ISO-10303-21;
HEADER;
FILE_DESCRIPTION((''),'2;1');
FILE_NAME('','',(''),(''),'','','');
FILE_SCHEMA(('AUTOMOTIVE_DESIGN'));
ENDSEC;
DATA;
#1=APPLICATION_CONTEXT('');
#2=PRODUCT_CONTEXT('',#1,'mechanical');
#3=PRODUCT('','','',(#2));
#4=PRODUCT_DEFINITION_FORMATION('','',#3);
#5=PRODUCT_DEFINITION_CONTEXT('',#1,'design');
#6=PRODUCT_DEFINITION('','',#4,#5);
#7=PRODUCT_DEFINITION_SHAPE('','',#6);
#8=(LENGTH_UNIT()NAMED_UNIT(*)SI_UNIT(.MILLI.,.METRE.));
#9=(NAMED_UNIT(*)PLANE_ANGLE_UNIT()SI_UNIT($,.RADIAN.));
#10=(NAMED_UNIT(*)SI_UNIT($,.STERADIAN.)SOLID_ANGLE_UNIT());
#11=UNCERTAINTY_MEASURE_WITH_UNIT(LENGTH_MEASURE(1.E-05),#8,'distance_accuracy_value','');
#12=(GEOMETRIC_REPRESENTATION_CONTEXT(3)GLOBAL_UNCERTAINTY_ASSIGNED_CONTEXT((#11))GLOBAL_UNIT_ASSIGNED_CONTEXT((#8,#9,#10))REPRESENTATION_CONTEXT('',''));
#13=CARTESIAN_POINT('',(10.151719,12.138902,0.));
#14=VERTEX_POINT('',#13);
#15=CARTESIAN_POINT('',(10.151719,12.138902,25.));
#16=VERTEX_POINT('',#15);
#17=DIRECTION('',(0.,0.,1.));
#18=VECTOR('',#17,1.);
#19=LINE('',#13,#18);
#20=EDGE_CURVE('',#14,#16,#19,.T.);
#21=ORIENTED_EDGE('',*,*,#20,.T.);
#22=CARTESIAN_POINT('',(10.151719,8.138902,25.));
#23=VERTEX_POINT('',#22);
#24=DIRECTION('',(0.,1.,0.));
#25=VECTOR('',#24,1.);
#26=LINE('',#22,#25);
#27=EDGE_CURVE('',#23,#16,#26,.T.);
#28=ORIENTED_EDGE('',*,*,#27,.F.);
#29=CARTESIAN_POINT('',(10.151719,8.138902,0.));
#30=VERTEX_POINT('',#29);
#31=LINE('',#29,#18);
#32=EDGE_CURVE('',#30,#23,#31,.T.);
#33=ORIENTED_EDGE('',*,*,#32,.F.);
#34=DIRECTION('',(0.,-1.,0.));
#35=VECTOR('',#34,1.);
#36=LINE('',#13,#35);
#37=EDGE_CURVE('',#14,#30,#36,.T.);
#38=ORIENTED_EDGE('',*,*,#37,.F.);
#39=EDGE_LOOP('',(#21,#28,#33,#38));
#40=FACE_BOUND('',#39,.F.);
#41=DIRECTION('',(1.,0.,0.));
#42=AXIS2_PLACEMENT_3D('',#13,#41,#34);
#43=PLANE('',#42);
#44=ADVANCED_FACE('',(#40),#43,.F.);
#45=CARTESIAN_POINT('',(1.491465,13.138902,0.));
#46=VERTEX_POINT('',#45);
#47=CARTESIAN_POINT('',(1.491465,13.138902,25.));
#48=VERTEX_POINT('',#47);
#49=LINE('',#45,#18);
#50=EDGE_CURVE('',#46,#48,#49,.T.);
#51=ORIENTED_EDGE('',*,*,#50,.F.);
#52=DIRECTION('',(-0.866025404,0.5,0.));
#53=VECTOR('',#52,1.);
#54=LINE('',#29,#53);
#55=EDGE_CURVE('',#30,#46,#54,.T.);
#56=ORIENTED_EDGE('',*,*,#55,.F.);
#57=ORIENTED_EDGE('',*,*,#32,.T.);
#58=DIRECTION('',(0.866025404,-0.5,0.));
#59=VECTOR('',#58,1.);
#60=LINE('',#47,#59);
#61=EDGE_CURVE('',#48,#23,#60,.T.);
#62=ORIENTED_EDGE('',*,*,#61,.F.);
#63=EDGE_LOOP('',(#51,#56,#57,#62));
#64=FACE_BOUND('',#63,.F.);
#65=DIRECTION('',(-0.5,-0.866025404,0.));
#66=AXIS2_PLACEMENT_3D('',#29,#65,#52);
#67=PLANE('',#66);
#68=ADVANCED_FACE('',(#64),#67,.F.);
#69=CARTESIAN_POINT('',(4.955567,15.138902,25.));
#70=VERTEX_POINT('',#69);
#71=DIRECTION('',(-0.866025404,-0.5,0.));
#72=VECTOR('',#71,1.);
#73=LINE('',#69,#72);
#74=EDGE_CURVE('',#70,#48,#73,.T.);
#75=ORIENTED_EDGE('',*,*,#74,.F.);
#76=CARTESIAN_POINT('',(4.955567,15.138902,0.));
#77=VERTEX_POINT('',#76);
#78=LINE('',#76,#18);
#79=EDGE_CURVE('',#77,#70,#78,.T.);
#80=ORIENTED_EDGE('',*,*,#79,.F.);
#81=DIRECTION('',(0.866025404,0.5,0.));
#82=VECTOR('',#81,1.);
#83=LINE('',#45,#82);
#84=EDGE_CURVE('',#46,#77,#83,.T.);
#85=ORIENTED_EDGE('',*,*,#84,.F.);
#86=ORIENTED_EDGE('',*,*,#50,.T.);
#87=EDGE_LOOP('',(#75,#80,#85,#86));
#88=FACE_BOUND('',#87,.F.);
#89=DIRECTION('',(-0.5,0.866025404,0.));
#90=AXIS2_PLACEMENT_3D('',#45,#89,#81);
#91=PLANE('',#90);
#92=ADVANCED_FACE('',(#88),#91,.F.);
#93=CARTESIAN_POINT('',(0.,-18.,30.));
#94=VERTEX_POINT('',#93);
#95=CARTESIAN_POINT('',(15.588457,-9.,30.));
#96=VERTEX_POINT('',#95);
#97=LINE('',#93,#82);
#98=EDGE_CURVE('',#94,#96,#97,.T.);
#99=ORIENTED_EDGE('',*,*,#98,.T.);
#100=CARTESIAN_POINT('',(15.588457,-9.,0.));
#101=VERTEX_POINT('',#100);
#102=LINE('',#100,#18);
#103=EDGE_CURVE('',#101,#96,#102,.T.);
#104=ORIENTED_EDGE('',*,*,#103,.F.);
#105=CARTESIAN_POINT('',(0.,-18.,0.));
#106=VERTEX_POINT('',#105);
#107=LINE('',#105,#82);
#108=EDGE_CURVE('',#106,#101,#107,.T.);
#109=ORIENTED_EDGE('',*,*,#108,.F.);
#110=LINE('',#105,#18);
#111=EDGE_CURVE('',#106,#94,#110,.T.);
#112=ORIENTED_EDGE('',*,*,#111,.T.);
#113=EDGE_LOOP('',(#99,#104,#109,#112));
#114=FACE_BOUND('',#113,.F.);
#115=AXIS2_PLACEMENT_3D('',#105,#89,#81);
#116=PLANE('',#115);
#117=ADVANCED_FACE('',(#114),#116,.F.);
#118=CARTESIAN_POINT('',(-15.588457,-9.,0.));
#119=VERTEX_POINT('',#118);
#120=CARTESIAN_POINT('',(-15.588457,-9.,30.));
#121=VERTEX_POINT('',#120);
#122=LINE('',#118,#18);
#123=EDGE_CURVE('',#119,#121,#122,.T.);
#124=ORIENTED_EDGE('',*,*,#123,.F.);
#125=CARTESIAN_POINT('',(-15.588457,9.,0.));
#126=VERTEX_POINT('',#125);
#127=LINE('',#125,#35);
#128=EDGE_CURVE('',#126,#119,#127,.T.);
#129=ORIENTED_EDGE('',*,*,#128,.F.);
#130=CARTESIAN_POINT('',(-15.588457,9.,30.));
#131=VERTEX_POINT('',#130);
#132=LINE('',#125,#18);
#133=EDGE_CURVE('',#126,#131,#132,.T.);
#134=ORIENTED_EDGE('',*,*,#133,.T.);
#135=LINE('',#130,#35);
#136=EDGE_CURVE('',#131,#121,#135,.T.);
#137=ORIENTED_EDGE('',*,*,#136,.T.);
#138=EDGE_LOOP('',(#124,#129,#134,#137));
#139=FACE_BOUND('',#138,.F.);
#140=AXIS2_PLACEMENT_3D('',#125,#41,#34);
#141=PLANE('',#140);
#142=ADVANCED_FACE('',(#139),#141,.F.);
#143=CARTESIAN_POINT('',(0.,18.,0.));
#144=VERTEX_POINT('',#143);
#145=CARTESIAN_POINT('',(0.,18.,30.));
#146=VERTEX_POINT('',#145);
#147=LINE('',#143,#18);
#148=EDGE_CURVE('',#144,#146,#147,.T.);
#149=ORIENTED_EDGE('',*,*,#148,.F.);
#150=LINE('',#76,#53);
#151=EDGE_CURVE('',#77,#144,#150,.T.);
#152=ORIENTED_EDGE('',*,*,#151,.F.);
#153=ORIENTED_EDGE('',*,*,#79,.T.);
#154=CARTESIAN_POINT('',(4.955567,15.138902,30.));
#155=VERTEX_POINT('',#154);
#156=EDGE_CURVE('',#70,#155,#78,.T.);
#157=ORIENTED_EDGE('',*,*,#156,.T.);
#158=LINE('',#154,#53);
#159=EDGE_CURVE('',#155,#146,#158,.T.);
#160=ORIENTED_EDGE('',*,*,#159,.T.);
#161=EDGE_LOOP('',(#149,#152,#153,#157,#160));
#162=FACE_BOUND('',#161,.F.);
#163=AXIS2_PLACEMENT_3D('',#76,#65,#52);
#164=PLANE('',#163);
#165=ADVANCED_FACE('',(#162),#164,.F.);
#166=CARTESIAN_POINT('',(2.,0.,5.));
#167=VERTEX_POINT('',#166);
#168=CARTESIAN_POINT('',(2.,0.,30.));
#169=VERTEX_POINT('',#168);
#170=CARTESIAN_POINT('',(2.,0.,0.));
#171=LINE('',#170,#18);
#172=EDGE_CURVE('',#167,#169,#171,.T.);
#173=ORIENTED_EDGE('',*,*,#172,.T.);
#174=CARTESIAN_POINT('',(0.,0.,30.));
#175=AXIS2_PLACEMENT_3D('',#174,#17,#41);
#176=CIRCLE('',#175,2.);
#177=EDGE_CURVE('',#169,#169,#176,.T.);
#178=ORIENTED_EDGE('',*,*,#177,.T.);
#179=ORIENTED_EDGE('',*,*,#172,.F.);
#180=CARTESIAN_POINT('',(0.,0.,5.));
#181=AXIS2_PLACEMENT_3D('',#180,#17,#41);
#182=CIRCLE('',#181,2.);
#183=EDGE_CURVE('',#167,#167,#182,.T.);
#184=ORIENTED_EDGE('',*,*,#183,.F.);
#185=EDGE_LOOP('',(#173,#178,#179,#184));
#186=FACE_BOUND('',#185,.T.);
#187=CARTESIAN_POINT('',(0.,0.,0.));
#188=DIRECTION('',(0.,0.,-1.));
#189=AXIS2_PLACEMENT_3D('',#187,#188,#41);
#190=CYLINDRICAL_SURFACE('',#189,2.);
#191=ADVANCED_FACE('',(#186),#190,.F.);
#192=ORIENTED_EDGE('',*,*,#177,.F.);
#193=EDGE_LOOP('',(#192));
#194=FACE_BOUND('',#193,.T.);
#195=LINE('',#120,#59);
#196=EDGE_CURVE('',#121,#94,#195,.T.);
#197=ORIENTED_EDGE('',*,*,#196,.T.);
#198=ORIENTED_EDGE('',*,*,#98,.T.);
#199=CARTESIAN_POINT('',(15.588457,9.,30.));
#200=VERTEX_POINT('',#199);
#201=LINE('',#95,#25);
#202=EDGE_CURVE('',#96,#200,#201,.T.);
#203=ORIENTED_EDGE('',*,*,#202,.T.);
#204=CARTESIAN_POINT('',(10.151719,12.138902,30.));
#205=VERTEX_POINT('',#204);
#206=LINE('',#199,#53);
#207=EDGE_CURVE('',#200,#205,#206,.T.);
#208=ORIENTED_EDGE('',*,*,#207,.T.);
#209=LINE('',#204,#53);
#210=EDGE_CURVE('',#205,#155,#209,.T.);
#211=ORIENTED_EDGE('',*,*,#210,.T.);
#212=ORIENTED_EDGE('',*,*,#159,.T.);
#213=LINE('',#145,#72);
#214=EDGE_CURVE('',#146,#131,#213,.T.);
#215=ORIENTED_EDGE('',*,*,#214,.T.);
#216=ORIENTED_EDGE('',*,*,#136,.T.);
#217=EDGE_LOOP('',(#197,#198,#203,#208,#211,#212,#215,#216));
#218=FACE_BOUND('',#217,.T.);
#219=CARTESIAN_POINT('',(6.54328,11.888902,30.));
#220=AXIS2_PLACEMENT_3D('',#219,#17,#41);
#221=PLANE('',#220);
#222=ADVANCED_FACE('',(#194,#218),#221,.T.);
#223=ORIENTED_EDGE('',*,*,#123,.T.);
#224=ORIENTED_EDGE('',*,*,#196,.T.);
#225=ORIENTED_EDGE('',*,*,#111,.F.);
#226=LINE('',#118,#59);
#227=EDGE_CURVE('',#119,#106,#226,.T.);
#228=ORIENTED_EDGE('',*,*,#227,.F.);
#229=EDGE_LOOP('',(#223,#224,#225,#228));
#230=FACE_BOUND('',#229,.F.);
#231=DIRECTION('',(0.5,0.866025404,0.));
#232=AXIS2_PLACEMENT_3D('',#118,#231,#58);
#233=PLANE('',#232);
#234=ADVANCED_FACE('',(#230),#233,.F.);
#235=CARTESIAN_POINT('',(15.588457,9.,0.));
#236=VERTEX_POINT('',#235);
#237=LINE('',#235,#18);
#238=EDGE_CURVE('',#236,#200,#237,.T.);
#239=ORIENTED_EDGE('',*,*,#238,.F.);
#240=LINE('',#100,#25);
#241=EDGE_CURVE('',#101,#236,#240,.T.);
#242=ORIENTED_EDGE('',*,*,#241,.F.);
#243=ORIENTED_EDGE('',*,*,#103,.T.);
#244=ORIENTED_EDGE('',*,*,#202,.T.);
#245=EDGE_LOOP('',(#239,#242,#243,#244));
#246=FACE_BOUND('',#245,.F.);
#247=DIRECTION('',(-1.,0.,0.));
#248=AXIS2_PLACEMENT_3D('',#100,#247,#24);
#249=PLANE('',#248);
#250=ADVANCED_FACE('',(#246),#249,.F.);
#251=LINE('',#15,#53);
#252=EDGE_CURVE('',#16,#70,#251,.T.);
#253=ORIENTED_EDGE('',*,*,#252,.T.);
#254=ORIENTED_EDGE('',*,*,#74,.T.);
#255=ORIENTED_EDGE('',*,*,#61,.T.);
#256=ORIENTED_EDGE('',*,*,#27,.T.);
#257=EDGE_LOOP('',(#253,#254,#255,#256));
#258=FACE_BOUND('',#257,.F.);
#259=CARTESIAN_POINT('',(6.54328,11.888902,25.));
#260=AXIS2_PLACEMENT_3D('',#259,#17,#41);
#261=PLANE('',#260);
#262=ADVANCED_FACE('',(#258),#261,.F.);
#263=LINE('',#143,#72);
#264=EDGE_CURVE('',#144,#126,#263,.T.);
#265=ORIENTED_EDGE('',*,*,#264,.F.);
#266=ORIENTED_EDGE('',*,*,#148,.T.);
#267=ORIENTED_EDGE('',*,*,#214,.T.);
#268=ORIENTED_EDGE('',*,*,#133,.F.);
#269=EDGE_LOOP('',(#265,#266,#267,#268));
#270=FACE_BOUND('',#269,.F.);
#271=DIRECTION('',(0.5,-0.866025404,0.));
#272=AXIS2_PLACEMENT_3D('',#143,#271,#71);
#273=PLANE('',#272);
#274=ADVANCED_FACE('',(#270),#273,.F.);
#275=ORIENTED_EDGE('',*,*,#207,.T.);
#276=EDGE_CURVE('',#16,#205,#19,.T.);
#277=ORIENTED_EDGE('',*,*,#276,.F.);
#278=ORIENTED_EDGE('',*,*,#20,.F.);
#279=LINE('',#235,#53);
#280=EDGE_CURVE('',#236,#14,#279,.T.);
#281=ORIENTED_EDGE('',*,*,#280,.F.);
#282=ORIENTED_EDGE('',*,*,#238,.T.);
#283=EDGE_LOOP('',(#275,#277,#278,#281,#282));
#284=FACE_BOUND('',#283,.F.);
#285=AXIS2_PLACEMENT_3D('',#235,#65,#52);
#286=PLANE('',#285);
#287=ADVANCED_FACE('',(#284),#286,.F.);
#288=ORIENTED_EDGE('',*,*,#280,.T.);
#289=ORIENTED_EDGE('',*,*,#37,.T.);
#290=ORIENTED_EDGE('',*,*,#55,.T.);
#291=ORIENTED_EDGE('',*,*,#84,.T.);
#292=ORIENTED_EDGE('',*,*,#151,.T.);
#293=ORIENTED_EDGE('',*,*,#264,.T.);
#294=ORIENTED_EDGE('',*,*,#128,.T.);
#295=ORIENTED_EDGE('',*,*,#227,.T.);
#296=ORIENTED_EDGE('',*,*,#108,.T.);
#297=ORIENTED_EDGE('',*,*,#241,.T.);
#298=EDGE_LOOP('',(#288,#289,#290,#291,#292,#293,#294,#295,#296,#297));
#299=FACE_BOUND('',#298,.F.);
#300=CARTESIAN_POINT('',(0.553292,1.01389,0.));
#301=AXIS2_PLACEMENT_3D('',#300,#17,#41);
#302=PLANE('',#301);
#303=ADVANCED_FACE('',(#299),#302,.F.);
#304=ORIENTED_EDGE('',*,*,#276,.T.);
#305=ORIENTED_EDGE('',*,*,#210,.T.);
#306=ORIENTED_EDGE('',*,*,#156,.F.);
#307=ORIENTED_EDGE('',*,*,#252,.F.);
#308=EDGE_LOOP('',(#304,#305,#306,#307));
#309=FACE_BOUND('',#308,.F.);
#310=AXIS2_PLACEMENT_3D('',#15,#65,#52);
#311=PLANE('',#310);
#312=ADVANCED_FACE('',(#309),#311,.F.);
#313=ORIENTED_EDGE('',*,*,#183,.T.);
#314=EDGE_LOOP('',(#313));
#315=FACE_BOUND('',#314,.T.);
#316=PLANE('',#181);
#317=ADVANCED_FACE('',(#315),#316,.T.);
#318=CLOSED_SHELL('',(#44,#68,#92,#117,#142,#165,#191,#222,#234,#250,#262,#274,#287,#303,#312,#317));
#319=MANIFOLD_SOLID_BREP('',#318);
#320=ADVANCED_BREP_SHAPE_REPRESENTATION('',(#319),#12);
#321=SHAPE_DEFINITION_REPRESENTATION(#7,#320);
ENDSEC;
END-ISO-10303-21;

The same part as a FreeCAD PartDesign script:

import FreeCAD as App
import Part
import Sketcher
Q = App.Units.Quantity

doc = App.newDocument("Part")
params = doc.addObject("Spreadsheet::Sheet", "Params")
for row, (alias, value) in enumerate([
    ("sketch1_diameter", "4 mm"),
    ("pad1_length", "5 mm"),
    ("sketch2_diameter", "4 mm"),
    ("sketch2_height", "18 mm"),
    ("sketch2_height2", "4 mm"),
    ("sketch2_length", "18 mm"),
    ("sketch2_length2", "10 mm"),
    ("pad2_length", "30 mm"),
    ("sketch3_height", "4 mm"),
    ("sketch3_length", "6 mm"),
    ("pad3_length", "5 mm"),
], start=1):
    params.set(f"A{row}", alias)
    params.set(f"B{row}", "=" + value)
    params.setAlias(f"B{row}", alias)

body = doc.addObject("PartDesign::Body", "Body")

sketch1 = doc.addObject("Sketcher::SketchObject", "Sketch")
body.addObject(sketch1)
sketch1.AttachmentSupport = (doc.XY_Plane, [""])
sketch1.MapMode = "FlatFace"
sketch1.addGeometry(Part.Circle(App.Vector(0, 0, 0), App.Vector(0, 0, 1), 2), False)
sketch1.addConstraint(Sketcher.Constraint("Coincident", 0, 3, -1, 1))
sketch1.addConstraint(Sketcher.Constraint("Diameter", 0, Q("4 mm")))
sketch1.setExpression("Constraints[1]", "Params.sketch1_diameter")
pad1 = doc.addObject("PartDesign::Pad", "Pad")
body.addObject(pad1)
pad1.Profile = sketch1
pad1.setExpression("Length", "Params.pad1_length")

sketch2 = doc.addObject("Sketcher::SketchObject", "Sketch001")
body.addObject(sketch2)
sketch2.AttachmentSupport = (doc.XY_Plane, [""])
sketch2.MapMode = "FlatFace"
sketch2.addGeometry(Part.LineSegment(App.Vector(0, 18, 0), App.Vector(-15.6, 9, 0)), False)
sketch2.addGeometry(Part.LineSegment(App.Vector(-15.6, 9, 0), App.Vector(-15.6, -9, 0)), False)
sketch2.addGeometry(Part.LineSegment(App.Vector(-15.6, -9, 0), App.Vector(0, -18, 0)), False)
sketch2.addGeometry(Part.LineSegment(App.Vector(0, -18, 0), App.Vector(15.6, -9, 0)), False)
sketch2.addGeometry(Part.LineSegment(App.Vector(15.6, -9, 0), App.Vector(15.6, 9, 0)), False)
sketch2.addGeometry(Part.LineSegment(App.Vector(15.6, 9, 0), App.Vector(10.2, 12.1, 0)), False)
sketch2.addGeometry(Part.LineSegment(App.Vector(10.2, 12.1, 0), App.Vector(10.2, 8.1, 0)), False)
sketch2.addGeometry(Part.LineSegment(App.Vector(10.2, 8.1, 0), App.Vector(1.5, 13.1, 0)), False)
sketch2.addGeometry(Part.LineSegment(App.Vector(1.5, 13.1, 0), App.Vector(5, 15.1, 0)), False)
sketch2.addGeometry(Part.LineSegment(App.Vector(5, 15.1, 0), App.Vector(0, 18, 0)), False)
sketch2.addGeometry(Part.Circle(App.Vector(0, 0, 0), App.Vector(0, 0, 1), 2), False)
sketch2.addConstraint(Sketcher.Constraint("Coincident", 0, 2, 1, 1))
sketch2.addConstraint(Sketcher.Constraint("Coincident", 1, 2, 2, 1))
sketch2.addConstraint(Sketcher.Constraint("Coincident", 2, 2, 3, 1))
sketch2.addConstraint(Sketcher.Constraint("Coincident", 3, 2, 4, 1))
sketch2.addConstraint(Sketcher.Constraint("Coincident", 4, 2, 5, 1))
sketch2.addConstraint(Sketcher.Constraint("Coincident", 5, 2, 6, 1))
sketch2.addConstraint(Sketcher.Constraint("Coincident", 6, 2, 7, 1))
sketch2.addConstraint(Sketcher.Constraint("Coincident", 7, 2, 8, 1))
sketch2.addConstraint(Sketcher.Constraint("Coincident", 8, 2, 9, 1))
sketch2.addConstraint(Sketcher.Constraint("Coincident", 9, 2, 0, 1))
sketch2.addConstraint(Sketcher.Constraint("Vertical", 1))
sketch2.addConstraint(Sketcher.Constraint("Vertical", 4))
sketch2.addConstraint(Sketcher.Constraint("Vertical", 6))
sketch2.addConstraint(Sketcher.Constraint("Coincident", 10, 3, -1, 1))
sketch2.addConstraint(Sketcher.Constraint("Symmetric", 0, 2, 3, 2, -1, 1))
sketch2.addConstraint(Sketcher.Constraint("Symmetric", 2, 2, 9, 2, -1, 1))
sketch2.addConstraint(Sketcher.Constraint("PointOnObject", 2, 2, -2))
sketch2.addConstraint(Sketcher.Constraint("Parallel", 2, 5))
sketch2.addConstraint(Sketcher.Constraint("Parallel", 5, 7))
sketch2.addConstraint(Sketcher.Constraint("Parallel", 3, 8))
sketch2.addConstraint(Sketcher.Constraint("Parallel", 7, 9))
sketch2.addConstraint(Sketcher.Constraint("Horizontal", 1, 2, 3, 2))
sketch2.addConstraint(Sketcher.Constraint("Horizontal", 0, 2, 4, 2))
sketch2.addConstraint(Sketcher.Constraint("Diameter", 10, Q("4 mm")))
sketch2.addConstraint(Sketcher.Constraint("DistanceY", 1, 2, 1, 1, Q("18 mm")))
sketch2.addConstraint(Sketcher.Constraint("DistanceY", 6, 2, 6, 1, Q("4 mm")))
sketch2.addConstraint(Sketcher.Constraint("Angle", 0, Q("-150 deg")))
sketch2.addConstraint(Sketcher.Constraint("Distance", 0, Q("18 mm")))
sketch2.addConstraint(Sketcher.Constraint("Distance", 7, Q("10 mm")))
sketch2.addConstraint(Sketcher.Constraint("DistanceX", -1, 1, 5, 2, Q("10.151719 mm")))
sketch2.setExpression("Constraints[23]", "Params.sketch2_diameter")
sketch2.setExpression("Constraints[24]", "Params.sketch2_height")
sketch2.setExpression("Constraints[25]", "Params.sketch2_height2")
sketch2.setExpression("Constraints[27]", "Params.sketch2_length")
sketch2.setExpression("Constraints[28]", "Params.sketch2_length2")
pad2 = doc.addObject("PartDesign::Pad", "Pad001")
body.addObject(pad2)
pad2.Profile = sketch2
pad2.setExpression("Length", "Params.pad2_length")

sketch3 = doc.addObject("Sketcher::SketchObject", "Sketch002")
body.addObject(sketch3)
sketch3.AttachmentSupport = (doc.XY_Plane, [""])
sketch3.MapMode = "FlatFace"
sketch3.AttachmentOffset = App.Placement(App.Vector(0, 0, 25), App.Rotation())
sketch3.addGeometry(Part.LineSegment(App.Vector(10.2, 12.1, 0), App.Vector(5, 15.1, 0)), False)
sketch3.addGeometry(Part.LineSegment(App.Vector(5, 15.1, 0), App.Vector(1.5, 13.1, 0)), False)
sketch3.addGeometry(Part.LineSegment(App.Vector(1.5, 13.1, 0), App.Vector(10.2, 8.1, 0)), False)
sketch3.addGeometry(Part.LineSegment(App.Vector(10.2, 8.1, 0), App.Vector(10.2, 12.1, 0)), False)
sketch3.addConstraint(Sketcher.Constraint("Coincident", 0, 2, 1, 1))
sketch3.addConstraint(Sketcher.Constraint("Coincident", 1, 2, 2, 1))
sketch3.addConstraint(Sketcher.Constraint("Coincident", 2, 2, 3, 1))
sketch3.addConstraint(Sketcher.Constraint("Coincident", 3, 2, 0, 1))
sketch3.addConstraint(Sketcher.Constraint("Vertical", 3))
sketch3.addConstraint(Sketcher.Constraint("Parallel", 0, 2))
sketch3.addConstraint(Sketcher.Constraint("DistanceY", 3, 1, 3, 2, Q("4 mm")))
sketch3.addConstraint(Sketcher.Constraint("Angle", 0, Q("150 deg")))
sketch3.addConstraint(Sketcher.Constraint("Angle", 1, Q("-150 deg")))
sketch3.addConstraint(Sketcher.Constraint("Distance", 0, Q("6 mm")))
sketch3.addConstraint(Sketcher.Constraint("DistanceX", -1, 1, 2, 2, Q("10.151719 mm")))
sketch3.addConstraint(Sketcher.Constraint("DistanceY", -1, 1, 0, 2, Q("15.138902 mm")))
sketch3.setExpression("Constraints[6]", "Params.sketch3_height")
sketch3.setExpression("Constraints[9]", "Params.sketch3_length")
pad3 = doc.addObject("PartDesign::Pad", "Pad002")
body.addObject(pad3)
pad3.Profile = sketch3
pad3.setExpression("Length", "Params.pad3_length")

doc.recompute()
